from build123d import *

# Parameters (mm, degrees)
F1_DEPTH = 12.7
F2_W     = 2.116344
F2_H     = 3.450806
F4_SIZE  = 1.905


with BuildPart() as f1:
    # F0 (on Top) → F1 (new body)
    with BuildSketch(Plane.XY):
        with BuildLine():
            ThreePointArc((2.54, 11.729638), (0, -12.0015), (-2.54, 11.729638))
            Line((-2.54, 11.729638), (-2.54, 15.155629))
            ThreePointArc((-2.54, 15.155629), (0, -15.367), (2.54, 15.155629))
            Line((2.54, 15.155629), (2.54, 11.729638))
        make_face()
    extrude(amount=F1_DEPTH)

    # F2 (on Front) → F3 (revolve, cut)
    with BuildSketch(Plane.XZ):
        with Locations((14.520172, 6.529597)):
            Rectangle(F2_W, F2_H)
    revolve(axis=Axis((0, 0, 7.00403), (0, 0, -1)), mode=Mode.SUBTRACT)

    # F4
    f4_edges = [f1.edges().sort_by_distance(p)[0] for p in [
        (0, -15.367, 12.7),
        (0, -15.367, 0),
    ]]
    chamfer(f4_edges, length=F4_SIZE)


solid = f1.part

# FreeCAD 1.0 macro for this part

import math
import FreeCAD as App
import Part
import Sketcher
from FreeCAD import Vector
Q = App.Units.Quantity


def edges_at(feature, points):
    """Names of the edges that pass closest to the given points."""
    edges = feature.Shape.Edges
    near = lambda p: min(range(len(edges)), key=lambda i: edges[i].distToShape(Part.Vertex(*p))[0])
    return sorted({f"Edge{near(p) + 1}" for p in points})

doc = App.newDocument("Part")
body = doc.addObject("PartDesign::Body", "Body")

# Sketch on XY plane
sketch1 = body.newObject("Sketcher::SketchObject", "Sketch")
sketch1.AttachmentSupport = (doc.getObject("XY_Plane"), [""])
sketch1.MapMode = "FlatFace"
sketch1.addGeometry([
    Part.ArcOfCircle(Part.Circle(Vector(0, 0, 0), Vector(0, 0, 1), 12), math.radians(102), math.radians(438)),
    Part.LineSegment(Vector(-2.5, 11.7, 0), Vector(-2.5, 15.2, 0)),
    Part.ArcOfCircle(Part.Circle(Vector(0, 0, 0), Vector(0, 0, 1), 15.4), math.radians(100), math.radians(440)),
    Part.LineSegment(Vector(2.5, 15.2, 0), Vector(2.5, 11.7, 0)),
], False)
sketch1.addConstraint([
    Sketcher.Constraint("Coincident", 0, 1, 1, 1),
    Sketcher.Constraint("Coincident", 1, 2, 2, 1),
    Sketcher.Constraint("Coincident", 2, 2, 3, 1),
    Sketcher.Constraint("Coincident", 3, 2, 0, 2),
    Sketcher.Constraint("Vertical", 1),
    Sketcher.Constraint("Vertical", 3),
    Sketcher.Constraint("Coincident", 0, 3, -1, 1),
    Sketcher.Constraint("Coincident", 2, 3, -1, 1),
    Sketcher.Constraint("Horizontal", 1, 2, 2, 2),
    Sketcher.Constraint("Radius", 2, Q("0.605 in")),
    Sketcher.Constraint("DistanceX", 0, 1, -1, 1, Q("0.1 in")),
    Sketcher.Constraint("Radius", 0, Q("0.4725 in")),
])
pad1 = body.newObject("PartDesign::Pad", "Pad")
pad1.Profile = sketch1
pad1.Length = Q("0.5 in")

# Sketch on XZ plane
sketch2 = body.newObject("Sketcher::SketchObject", "Sketch001")
sketch2.AttachmentSupport = (doc.getObject("XZ_Plane"), [""])
sketch2.MapMode = "FlatFace"
sketch2.addGeometry([
    Part.LineSegment(Vector(13.5, 8.3, 0), Vector(13.5, 4.8, 0)),
    Part.LineSegment(Vector(13.5, 4.8, 0), Vector(15.6, 4.8, 0)),
    Part.LineSegment(Vector(15.6, 4.8, 0), Vector(15.6, 8.3, 0)),
    Part.LineSegment(Vector(15.6, 8.3, 0), Vector(13.5, 8.3, 0)),
], False)
sketch2.addConstraint([
    Sketcher.Constraint("Coincident", 0, 2, 1, 1),
    Sketcher.Constraint("Coincident", 1, 2, 2, 1),
    Sketcher.Constraint("Coincident", 2, 2, 3, 1),
    Sketcher.Constraint("Coincident", 3, 2, 0, 1),
    Sketcher.Constraint("Vertical", 0),
    Sketcher.Constraint("Horizontal", 1),
    Sketcher.Constraint("Vertical", 2),
    Sketcher.Constraint("Horizontal", 3),
    Sketcher.Constraint("DistanceX", -1, 1, 0, 2, Q("0.53 in")),
    Sketcher.Constraint("DistanceY", -1, 1, 2, 2, Q("0.325 in")),
    Sketcher.Constraint("DistanceX", 1, 1, 1, 2, Q("2.116344 mm")),
    Sketcher.Constraint("DistanceY", 0, 2, 0, 1, Q("3.450806 mm")),
])
groove = body.newObject("PartDesign::Groove", "Groove")
groove.Profile = sketch2
groove.ReferenceAxis = (sketch2, ["V_Axis"])
groove.Angle = 360
doc.recompute()

chamfer = body.newObject("PartDesign::Chamfer", "Chamfer")
chamfer.Base = (groove, edges_at(groove, [(0, -15.367, 12.7), (0, -15.367, 0)]))
chamfer.Size = Q("0.075 in")

doc.recompute()
